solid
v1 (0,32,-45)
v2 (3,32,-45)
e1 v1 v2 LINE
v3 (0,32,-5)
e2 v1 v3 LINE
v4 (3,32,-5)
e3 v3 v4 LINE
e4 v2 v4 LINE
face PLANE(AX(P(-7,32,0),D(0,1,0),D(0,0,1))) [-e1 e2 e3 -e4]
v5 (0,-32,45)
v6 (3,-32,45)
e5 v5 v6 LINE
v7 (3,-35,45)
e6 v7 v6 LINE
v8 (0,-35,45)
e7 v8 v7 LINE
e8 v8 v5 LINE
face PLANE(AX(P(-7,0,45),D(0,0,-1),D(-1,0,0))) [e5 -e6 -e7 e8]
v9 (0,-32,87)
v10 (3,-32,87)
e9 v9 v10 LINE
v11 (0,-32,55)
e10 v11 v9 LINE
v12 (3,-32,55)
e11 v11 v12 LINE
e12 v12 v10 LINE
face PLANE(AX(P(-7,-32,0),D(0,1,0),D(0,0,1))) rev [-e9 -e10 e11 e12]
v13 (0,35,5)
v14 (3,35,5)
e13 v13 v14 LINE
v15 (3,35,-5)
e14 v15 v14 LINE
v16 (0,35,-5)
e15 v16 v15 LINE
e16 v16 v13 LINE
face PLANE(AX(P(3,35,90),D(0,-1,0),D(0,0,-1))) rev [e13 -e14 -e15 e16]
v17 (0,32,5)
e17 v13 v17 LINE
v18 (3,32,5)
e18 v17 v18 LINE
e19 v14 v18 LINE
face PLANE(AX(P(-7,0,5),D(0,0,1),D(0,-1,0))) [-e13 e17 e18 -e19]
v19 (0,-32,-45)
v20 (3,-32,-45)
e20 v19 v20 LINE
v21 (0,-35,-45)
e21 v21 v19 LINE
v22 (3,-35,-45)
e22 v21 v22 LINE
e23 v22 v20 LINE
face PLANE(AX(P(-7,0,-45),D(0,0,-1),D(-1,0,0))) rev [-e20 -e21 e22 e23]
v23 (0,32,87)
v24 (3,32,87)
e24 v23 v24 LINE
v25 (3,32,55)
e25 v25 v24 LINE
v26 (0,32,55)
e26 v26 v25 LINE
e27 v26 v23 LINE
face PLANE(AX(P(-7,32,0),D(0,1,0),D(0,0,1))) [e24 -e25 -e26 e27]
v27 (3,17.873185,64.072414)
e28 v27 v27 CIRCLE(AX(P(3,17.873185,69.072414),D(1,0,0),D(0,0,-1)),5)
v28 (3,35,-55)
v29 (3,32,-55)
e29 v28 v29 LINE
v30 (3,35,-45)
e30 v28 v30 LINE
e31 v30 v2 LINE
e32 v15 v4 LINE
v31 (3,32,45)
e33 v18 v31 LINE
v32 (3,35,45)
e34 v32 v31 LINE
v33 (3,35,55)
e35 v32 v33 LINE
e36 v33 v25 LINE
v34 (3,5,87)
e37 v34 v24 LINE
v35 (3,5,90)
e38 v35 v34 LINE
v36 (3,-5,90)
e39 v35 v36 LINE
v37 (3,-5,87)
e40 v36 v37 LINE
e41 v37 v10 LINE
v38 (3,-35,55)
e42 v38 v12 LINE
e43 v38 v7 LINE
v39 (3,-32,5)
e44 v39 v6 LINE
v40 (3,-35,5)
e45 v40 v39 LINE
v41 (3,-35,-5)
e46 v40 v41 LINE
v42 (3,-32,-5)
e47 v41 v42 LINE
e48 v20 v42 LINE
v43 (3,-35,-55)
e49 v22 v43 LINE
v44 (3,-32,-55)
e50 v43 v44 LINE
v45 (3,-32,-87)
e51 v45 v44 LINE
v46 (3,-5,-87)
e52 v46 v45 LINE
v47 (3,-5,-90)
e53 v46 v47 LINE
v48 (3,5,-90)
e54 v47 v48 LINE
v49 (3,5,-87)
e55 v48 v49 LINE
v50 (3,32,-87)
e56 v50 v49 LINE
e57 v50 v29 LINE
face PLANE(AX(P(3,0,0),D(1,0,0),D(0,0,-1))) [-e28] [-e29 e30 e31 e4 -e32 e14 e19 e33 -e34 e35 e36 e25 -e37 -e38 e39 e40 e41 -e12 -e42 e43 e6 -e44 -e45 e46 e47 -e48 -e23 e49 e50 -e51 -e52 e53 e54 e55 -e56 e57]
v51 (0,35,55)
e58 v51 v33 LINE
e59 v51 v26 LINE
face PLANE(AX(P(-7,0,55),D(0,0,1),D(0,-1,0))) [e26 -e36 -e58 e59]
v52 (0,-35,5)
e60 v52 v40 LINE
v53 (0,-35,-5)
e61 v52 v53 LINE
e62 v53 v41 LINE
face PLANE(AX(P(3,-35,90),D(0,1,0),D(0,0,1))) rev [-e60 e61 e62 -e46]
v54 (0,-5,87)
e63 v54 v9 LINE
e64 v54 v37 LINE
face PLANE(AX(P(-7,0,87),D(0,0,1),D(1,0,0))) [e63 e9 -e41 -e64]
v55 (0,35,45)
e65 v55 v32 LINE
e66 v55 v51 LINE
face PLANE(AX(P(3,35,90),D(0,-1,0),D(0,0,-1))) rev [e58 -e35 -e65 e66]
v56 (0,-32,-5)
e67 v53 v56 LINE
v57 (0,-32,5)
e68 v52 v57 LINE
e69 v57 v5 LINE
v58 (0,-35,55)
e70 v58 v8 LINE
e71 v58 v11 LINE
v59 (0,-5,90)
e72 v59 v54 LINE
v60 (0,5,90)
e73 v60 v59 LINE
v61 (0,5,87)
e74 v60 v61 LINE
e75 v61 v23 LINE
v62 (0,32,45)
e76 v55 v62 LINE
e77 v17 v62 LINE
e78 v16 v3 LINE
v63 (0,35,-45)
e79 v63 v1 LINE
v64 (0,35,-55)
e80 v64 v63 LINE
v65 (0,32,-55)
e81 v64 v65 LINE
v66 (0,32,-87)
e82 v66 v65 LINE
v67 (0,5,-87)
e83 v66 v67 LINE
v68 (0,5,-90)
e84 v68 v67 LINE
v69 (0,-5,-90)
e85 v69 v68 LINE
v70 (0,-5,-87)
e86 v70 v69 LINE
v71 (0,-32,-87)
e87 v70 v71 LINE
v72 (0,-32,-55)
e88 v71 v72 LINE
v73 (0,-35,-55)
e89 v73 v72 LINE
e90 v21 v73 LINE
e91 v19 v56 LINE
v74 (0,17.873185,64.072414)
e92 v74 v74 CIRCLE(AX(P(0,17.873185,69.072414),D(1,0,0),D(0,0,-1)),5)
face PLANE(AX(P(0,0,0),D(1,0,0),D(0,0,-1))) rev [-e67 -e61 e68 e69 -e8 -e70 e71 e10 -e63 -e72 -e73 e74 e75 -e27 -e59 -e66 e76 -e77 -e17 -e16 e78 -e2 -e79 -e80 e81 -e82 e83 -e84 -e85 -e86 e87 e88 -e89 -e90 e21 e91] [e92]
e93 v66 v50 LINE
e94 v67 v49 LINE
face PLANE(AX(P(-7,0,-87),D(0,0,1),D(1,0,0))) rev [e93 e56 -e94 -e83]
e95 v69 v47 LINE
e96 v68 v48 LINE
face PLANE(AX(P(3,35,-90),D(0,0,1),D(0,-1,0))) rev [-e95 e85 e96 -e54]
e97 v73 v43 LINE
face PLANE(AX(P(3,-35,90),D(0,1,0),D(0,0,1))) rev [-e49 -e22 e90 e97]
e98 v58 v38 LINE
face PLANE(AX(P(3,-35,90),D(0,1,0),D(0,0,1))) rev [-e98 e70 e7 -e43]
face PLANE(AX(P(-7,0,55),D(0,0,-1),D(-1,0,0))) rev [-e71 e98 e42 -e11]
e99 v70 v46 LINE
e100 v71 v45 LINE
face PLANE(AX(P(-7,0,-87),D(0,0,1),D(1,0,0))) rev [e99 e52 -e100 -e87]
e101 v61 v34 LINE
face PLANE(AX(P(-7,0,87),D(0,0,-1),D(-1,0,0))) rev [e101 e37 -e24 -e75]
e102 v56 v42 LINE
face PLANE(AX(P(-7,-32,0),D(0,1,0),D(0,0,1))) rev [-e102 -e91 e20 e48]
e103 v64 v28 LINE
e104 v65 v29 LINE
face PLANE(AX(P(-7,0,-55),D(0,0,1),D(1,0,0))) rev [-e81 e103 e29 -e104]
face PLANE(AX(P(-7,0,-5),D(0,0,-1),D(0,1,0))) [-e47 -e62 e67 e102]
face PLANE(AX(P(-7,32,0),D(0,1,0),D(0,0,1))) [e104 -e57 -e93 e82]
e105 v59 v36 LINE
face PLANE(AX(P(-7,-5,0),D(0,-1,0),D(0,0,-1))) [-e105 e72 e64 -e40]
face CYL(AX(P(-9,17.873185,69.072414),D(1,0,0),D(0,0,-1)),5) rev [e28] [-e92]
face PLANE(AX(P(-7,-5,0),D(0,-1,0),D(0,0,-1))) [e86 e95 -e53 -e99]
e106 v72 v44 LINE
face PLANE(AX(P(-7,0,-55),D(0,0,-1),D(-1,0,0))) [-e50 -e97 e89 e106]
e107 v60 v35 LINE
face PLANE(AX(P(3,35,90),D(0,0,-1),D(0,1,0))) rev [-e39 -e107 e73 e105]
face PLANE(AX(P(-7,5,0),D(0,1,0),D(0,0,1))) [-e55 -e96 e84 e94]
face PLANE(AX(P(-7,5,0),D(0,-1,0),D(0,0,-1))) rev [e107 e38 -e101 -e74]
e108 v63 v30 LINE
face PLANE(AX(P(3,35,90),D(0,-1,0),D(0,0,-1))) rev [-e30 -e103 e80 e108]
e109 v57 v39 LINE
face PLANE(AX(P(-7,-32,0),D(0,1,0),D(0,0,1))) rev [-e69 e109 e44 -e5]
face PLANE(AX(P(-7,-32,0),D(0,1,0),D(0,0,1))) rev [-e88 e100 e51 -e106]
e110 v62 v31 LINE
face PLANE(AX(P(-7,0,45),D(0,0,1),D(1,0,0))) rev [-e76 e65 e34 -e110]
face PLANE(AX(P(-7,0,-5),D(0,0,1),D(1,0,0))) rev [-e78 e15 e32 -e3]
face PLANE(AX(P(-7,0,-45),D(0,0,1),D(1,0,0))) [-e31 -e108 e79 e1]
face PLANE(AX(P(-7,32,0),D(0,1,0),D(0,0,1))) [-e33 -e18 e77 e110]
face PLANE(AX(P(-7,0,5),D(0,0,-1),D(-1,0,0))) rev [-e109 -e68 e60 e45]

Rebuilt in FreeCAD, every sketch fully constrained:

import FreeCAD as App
import Part
import Sketcher

V = App.Vector
Q = App.Units.Quantity

doc = App.newDocument("Part")
params = doc.addObject("Spreadsheet::Sheet", "Params")
for row, (alias, value) in enumerate([
    ("sketch1_width", "70 mm"),
    ("sketch1_height", "180 mm"),
    ("pad1_length", "3 mm"),
    ("sketch2_width", "3 mm"),
    ("sketch2_width2", "30 mm"),
    ("sketch2_height", "32 mm"),
    ("sketch2_height2", "40 mm"),
    ("pocket1_length", "10 mm"),
    ("sketch3_diameter", "10 mm"),
    ("pocket2_length", "12 mm"),
], start=1):
    params.set(f"A{row}", alias)
    params.set(f"B{row}", "=" + value)
    params.setAlias(f"B{row}", alias)

body = doc.addObject("PartDesign::Body", "Body")

# Sketch on YZ plane
sketch1 = body.newObject("Sketcher::SketchObject", "Sketch")
sketch1.AttachmentSupport = (doc.getObject("YZ_Plane"), [""])
sketch1.MapMode = "FlatFace"
sketch1.addGeometry(Part.LineSegment(V(35, 90, 0), V(-35, 90, 0)), False)
sketch1.addGeometry(Part.LineSegment(V(-35, 90, 0), V(-35, -90, 0)), False)
sketch1.addGeometry(Part.LineSegment(V(-35, -90, 0), V(35, -90, 0)), False)
sketch1.addGeometry(Part.LineSegment(V(35, -90, 0), V(35, 90, 0)), False)
sketch1.addConstraint(Sketcher.Constraint("Coincident", 0, 2, 1, 1))
sketch1.addConstraint(Sketcher.Constraint("Coincident", 1, 2, 2, 1))
sketch1.addConstraint(Sketcher.Constraint("Coincident", 2, 2, 3, 1))
sketch1.addConstraint(Sketcher.Constraint("Coincident", 3, 2, 0, 1))
sketch1.addConstraint(Sketcher.Constraint("Horizontal", 0))
sketch1.addConstraint(Sketcher.Constraint("Vertical", 1))
sketch1.addConstraint(Sketcher.Constraint("Horizontal", 2))
sketch1.addConstraint(Sketcher.Constraint("Vertical", 3))
sketch1.addConstraint(Sketcher.Constraint("Symmetric", 0, 2, 2, 2, -1, 1))
sketch1.addConstraint(Sketcher.Constraint("DistanceX", 0, 2, 0, 1, Q("70 mm")))
sketch1.addConstraint(Sketcher.Constraint("DistanceY", 1, 2, 1, 1, Q("180 mm")))
sketch1.setExpression("Constraints[9]", "Params.sketch1_width")
sketch1.setExpression("Constraints[10]", "Params.sketch1_height")
pad1 = body.newObject("PartDesign::Pad", "Pad")
pad1.Profile = sketch1
pad1.setExpression("Length", "Params.pad1_length")

# Sketch on YZ plane
sketch2 = body.newObject("Sketcher::SketchObject", "Sketch001")
sketch2.AttachmentSupport = (doc.getObject("YZ_Plane"), [""])
sketch2.MapMode = "FlatFace"
sketch2.AttachmentOffset = App.Placement(V(0, 0, 3), App.Rotation())
sketch2.addGeometry(Part.LineSegment(V(-32, -87, 0), V(-32, -55, 0)), False)
sketch2.addGeometry(Part.LineSegment(V(-32, -55, 0), V(-35, -55, 0)), False)
sketch2.addGeometry(Part.LineSegment(V(-35, -55, 0), V(-35, -90, 0)), False)
sketch2.addGeometry(Part.LineSegment(V(-35, -90, 0), V(-5, -90, 0)), False)
sketch2.addGeometry(Part.LineSegment(V(-5, -90, 0), V(-5, -87, 0)), False)
sketch2.addGeometry(Part.LineSegment(V(-5, -87, 0), V(-32, -87, 0)), False)
sketch2.addGeometry(Part.LineSegment(V(-32, -5, 0), V(-35, -5, 0)), False)
sketch2.addGeometry(Part.LineSegment(V(-35, -5, 0), V(-35, -45, 0)), False)
sketch2.addGeometry(Part.LineSegment(V(-35, -45, 0), V(-32, -45, 0)), False)
sketch2.addGeometry(Part.LineSegment(V(-32, -45, 0), V(-32, -5, 0)), False)
sketch2.addGeometry(Part.LineSegment(V(-32, 45, 0), V(-35, 45, 0)), False)
sketch2.addGeometry(Part.LineSegment(V(-35, 45, 0), V(-35, 5, 0)), False)
sketch2.addGeometry(Part.LineSegment(V(-35, 5, 0), V(-32, 5, 0)), False)
sketch2.addGeometry(Part.LineSegment(V(-32, 5, 0), V(-32, 45, 0)), False)
sketch2.addGeometry(Part.LineSegment(V(-32, 55, 0), V(-32, 87, 0)), False)
sketch2.addGeometry(Part.LineSegment(V(-32, 87, 0), V(-5, 87, 0)), False)
sketch2.addGeometry(Part.LineSegment(V(-5, 87, 0), V(-5, 90, 0)), False)
sketch2.addGeometry(Part.LineSegment(V(-5, 90, 0), V(-35, 90, 0)), False)
sketch2.addGeometry(Part.LineSegment(V(-35, 90, 0), V(-35, 55, 0)), False)
sketch2.addGeometry(Part.LineSegment(V(-35, 55, 0), V(-32, 55, 0)), False)
sketch2.addGeometry(Part.LineSegment(V(5, 90, 0), V(5, 87, 0)), False)
sketch2.addGeometry(Part.LineSegment(V(5, 87, 0), V(32, 87, 0)), False)
sketch2.addGeometry(Part.LineSegment(V(32, 87, 0), V(32, 55, 0)), False)
sketch2.addGeometry(Part.LineSegment(V(32, 55, 0), V(35, 55, 0)), False)
sketch2.addGeometry(Part.LineSegment(V(35, 55, 0), V(35, 90, 0)), False)
sketch2.addGeometry(Part.LineSegment(V(35, 90, 0), V(5, 90, 0)), False)
sketch2.addGeometry(Part.LineSegment(V(35, 45, 0), V(32, 45, 0)), False)
sketch2.addGeometry(Part.LineSegment(V(32, 45, 0), V(32, 5, 0)), False)
sketch2.addGeometry(Part.LineSegment(V(32, 5, 0), V(35, 5, 0)), False)
sketch2.addGeometry(Part.LineSegment(V(35, 5, 0), V(35, 45, 0)), False)
sketch2.addGeometry(Part.LineSegment(V(35, -5, 0), V(32, -5, 0)), False)
sketch2.addGeometry(Part.LineSegment(V(32, -5, 0), V(32, -45, 0)), False)
sketch2.addGeometry(Part.LineSegment(V(32, -45, 0), V(35, -45, 0)), False)
sketch2.addGeometry(Part.LineSegment(V(35, -45, 0), V(35, -5, 0)), False)
sketch2.addGeometry(Part.LineSegment(V(32, -55, 0), V(32, -87, 0)), False)
sketch2.addGeometry(Part.LineSegment(V(32, -87, 0), V(5, -87, 0)), False)
sketch2.addGeometry(Part.LineSegment(V(5, -87, 0), V(5, -90, 0)), False)
sketch2.addGeometry(Part.LineSegment(V(5, -90, 0), V(35, -90, 0)), False)
sketch2.addGeometry(Part.LineSegment(V(35, -90, 0), V(35, -55, 0)), False)
sketch2.addGeometry(Part.LineSegment(V(35, -55, 0), V(32, -55, 0)), False)
sketch2.addConstraint(Sketcher.Constraint("Coincident", 0, 2, 1, 1))
sketch2.addConstraint(Sketcher.Constraint("Coincident", 1, 2, 2, 1))
sketch2.addConstraint(Sketcher.Constraint("Coincident", 2, 2, 3, 1))
sketch2.addConstraint(Sketcher.Constraint("Coincident", 3, 2, 4, 1))
sketch2.addConstraint(Sketcher.Constraint("Coincident", 4, 2, 5, 1))
sketch2.addConstraint(Sketcher.Constraint("Coincident", 5, 2, 0, 1))
sketch2.addConstraint(Sketcher.Constraint("Coincident", 6, 2, 7, 1))
sketch2.addConstraint(Sketcher.Constraint("Coincident", 7, 2, 8, 1))
sketch2.addConstraint(Sketcher.Constraint("Coincident", 8, 2, 9, 1))
sketch2.addConstraint(Sketcher.Constraint("Coincident", 9, 2, 6, 1))
sketch2.addConstraint(Sketcher.Constraint("Coincident", 10, 2, 11, 1))
sketch2.addConstraint(Sketcher.Constraint("Coincident", 11, 2, 12, 1))
sketch2.addConstraint(Sketcher.Constraint("Coincident", 12, 2, 13, 1))
sketch2.addConstraint(Sketcher.Constraint("Coincident", 13, 2, 10, 1))
sketch2.addConstraint(Sketcher.Constraint("Coincident", 14, 2, 15, 1))
sketch2.addConstraint(Sketcher.Constraint("Coincident", 15, 2, 16, 1))
sketch2.addConstraint(Sketcher.Constraint("Coincident", 16, 2, 17, 1))
sketch2.addConstraint(Sketcher.Constraint("Coincident", 17, 2, 18, 1))
sketch2.addConstraint(Sketcher.Constraint("Coincident", 18, 2, 19, 1))
sketch2.addConstraint(Sketcher.Constraint("Coincident", 19, 2, 14, 1))
sketch2.addConstraint(Sketcher.Constraint("Coincident", 20, 2, 21, 1))
sketch2.addConstraint(Sketcher.Constraint("Coincident", 21, 2, 22, 1))
sketch2.addConstraint(Sketcher.Constraint("Coincident", 22, 2, 23, 1))
sketch2.addConstraint(Sketcher.Constraint("Coincident", 23, 2, 24, 1))
sketch2.addConstraint(Sketcher.Constraint("Coincident", 24, 2, 25, 1))
sketch2.addConstraint(Sketcher.Constraint("Coincident", 25, 2, 20, 1))
sketch2.addConstraint(Sketcher.Constraint("Coincident", 26, 2, 27, 1))
sketch2.addConstraint(Sketcher.Constraint("Coincident", 27, 2, 28, 1))
sketch2.addConstraint(Sketcher.Constraint("Coincident", 28, 2, 29, 1))
sketch2.addConstraint(Sketcher.Constraint("Coincident", 29, 2, 26, 1))
sketch2.addConstraint(Sketcher.Constraint("Coincident", 30, 2, 31, 1))
sketch2.addConstraint(Sketcher.Constraint("Coincident", 31, 2, 32, 1))
sketch2.addConstraint(Sketcher.Constraint("Coincident", 32, 2, 33, 1))
sketch2.addConstraint(Sketcher.Constraint("Coincident", 33, 2, 30, 1))
sketch2.addConstraint(Sketcher.Constraint("Coincident", 34, 2, 35, 1))
sketch2.addConstraint(Sketcher.Constraint("Coincident", 35, 2, 36, 1))
sketch2.addConstraint(Sketcher.Constraint("Coincident", 36, 2, 37, 1))
sketch2.addConstraint(Sketcher.Constraint("Coincident", 37, 2, 38, 1))
sketch2.addConstraint(Sketcher.Constraint("Coincident", 38, 2, 39, 1))
sketch2.addConstraint(Sketcher.Constraint("Coincident", 39, 2, 34, 1))
sketch2.addConstraint(Sketcher.Constraint("Vertical", 0))
sketch2.addConstraint(Sketcher.Constraint("Horizontal", 1))
sketch2.addConstraint(Sketcher.Constraint("Vertical", 2))
sketch2.addConstraint(Sketcher.Constraint("Horizontal", 3))
sketch2.addConstraint(Sketcher.Constraint("Vertical", 4))
sketch2.addConstraint(Sketcher.Constraint("Horizontal", 5))
sketch2.addConstraint(Sketcher.Constraint("Horizontal", 6))
sketch2.addConstraint(Sketcher.Constraint("Vertical", 7))
sketch2.addConstraint(Sketcher.Constraint("Horizontal", 8))
sketch2.addConstraint(Sketcher.Constraint("Vertical", 9))
sketch2.addConstraint(Sketcher.Constraint("Horizontal", 10))
sketch2.addConstraint(Sketcher.Constraint("Vertical", 11))
sketch2.addConstraint(Sketcher.Constraint("Horizontal", 12))
sketch2.addConstraint(Sketcher.Constraint("Vertical", 13))
sketch2.addConstraint(Sketcher.Constraint("Vertical", 14))
sketch2.addConstraint(Sketcher.Constraint("Horizontal", 15))
sketch2.addConstraint(Sketcher.Constraint("Vertical", 16))
sketch2.addConstraint(Sketcher.Constraint("Horizontal", 17))
sketch2.addConstraint(Sketcher.Constraint("Vertical", 18))
sketch2.addConstraint(Sketcher.Constraint("Horizontal", 19))
sketch2.addConstraint(Sketcher.Constraint("Vertical", 20))
sketch2.addConstraint(Sketcher.Constraint("Horizontal", 21))
sketch2.addConstraint(Sketcher.Constraint("Vertical", 22))
sketch2.addConstraint(Sketcher.Constraint("Horizontal", 23))
sketch2.addConstraint(Sketcher.Constraint("Vertical", 24))
sketch2.addConstraint(Sketcher.Constraint("Horizontal", 25))
sketch2.addConstraint(Sketcher.Constraint("Horizontal", 26))
sketch2.addConstraint(Sketcher.Constraint("Vertical", 27))
sketch2.addConstraint(Sketcher.Constraint("Horizontal", 28))
sketch2.addConstraint(Sketcher.Constraint("Vertical", 29))
sketch2.addConstraint(Sketcher.Constraint("Horizontal", 30))
sketch2.addConstraint(Sketcher.Constraint("Vertical", 31))
sketch2.addConstraint(Sketcher.Constraint("Horizontal", 32))
sketch2.addConstraint(Sketcher.Constraint("Vertical", 33))
sketch2.addConstraint(Sketcher.Constraint("Vertical", 34))
sketch2.addConstraint(Sketcher.Constraint("Horizontal", 35))
sketch2.addConstraint(Sketcher.Constraint("Vertical", 36))
sketch2.addConstraint(Sketcher.Constraint("Horizontal", 37))
sketch2.addConstraint(Sketcher.Constraint("Vertical", 38))
sketch2.addConstraint(Sketcher.Constraint("Horizontal", 39))
sketch2.addConstraint(Sketcher.Constraint("Symmetric", 4, 2, 20, 2, -1, 1))
sketch2.addConstraint(Sketcher.Constraint("Symmetric", 0, 2, 22, 2, -1, 1))
sketch2.addConstraint(Sketcher.Constraint("Symmetric", 2, 2, 24, 2, -1, 1))
sketch2.addConstraint(Sketcher.Constraint("Symmetric", 8, 2, 26, 2, -1, 1))
sketch2.addConstraint(Sketcher.Constraint("Symmetric", 6, 2, 28, 2, -1, 1))
sketch2.addConstraint(Sketcher.Constraint("Symmetric", 12, 2, 30, 2, -1, 1))
sketch2.addConstraint(Sketcher.Constraint("Symmetric", 10, 2, 32, 2, -1, 1))
sketch2.addConstraint(Sketcher.Constraint("Symmetric", 14, 2, 34, 2, -1, 1))
sketch2.addConstraint(Sketcher.Constraint("Symmetric", 16, 2, 36, 2, -1, 1))
sketch2.addConstraint(Sketcher.Constraint("Symmetric", 18, 2, 38, 2, -1, 1))
sketch2.addConstraint(Sketcher.Constraint("Symmetric", 15, 2, 20, 2, -2))
sketch2.addConstraint(Sketcher.Constraint("Symmetric", 19, 2, 22, 2, -2))
sketch2.addConstraint(Sketcher.Constraint("Symmetric", 17, 2, 24, 2, -2))
sketch2.addConstraint(Sketcher.Constraint("Symmetric", 13, 2, 26, 2, -2))
sketch2.addConstraint(Sketcher.Constraint("Symmetric", 11, 2, 28, 2, -2))
sketch2.addConstraint(Sketcher.Constraint("Vertical", 2, 2, 6, 2))
sketch2.addConstraint(Sketcher.Constraint("Vertical", 5, 2, 8, 2))
sketch2.addConstraint(Sketcher.Constraint("Equal", 39, 4))
sketch2.addConstraint(Sketcher.Constraint("DistanceX", 1, 2, 1, 1, Q("3 mm")))
sketch2.addConstraint(Sketcher.Constraint("DistanceX", 3, 1, 3, 2, Q("30 mm")))
sketch2.addConstraint(Sketcher.Constraint("DistanceY", 0, 1, 0, 2, Q("32 mm")))
sketch2.addConstraint(Sketcher.Constraint("DistanceY", 7, 2, 7, 1, Q("40 mm")))
sketch2.addConstraint(Sketcher.Constraint("DistanceX", 0, 2, -1, 1, Q("32 mm")))
sketch2.addConstraint(Sketcher.Constraint("DistanceY", 0, 2, -1, 1, Q("55 mm")))
sketch2.addConstraint(Sketcher.Constraint("DistanceY", 6, 2, -1, 1, Q("5 mm")))
sketch2.setExpression("Constraints[98]", "Params.sketch2_width")
sketch2.setExpression("Constraints[99]", "Params.sketch2_width2")
sketch2.setExpression("Constraints[100]", "Params.sketch2_height")
sketch2.setExpression("Constraints[101]", "Params.sketch2_height2")
pocket1 = body.newObject("PartDesign::Pocket", "Pocket")
pocket1.Profile = sketch2
pocket1.setExpression("Length", "Params.pocket1_length")

# Sketch on YZ plane
sketch3 = body.newObject("Sketcher::SketchObject", "Sketch002")
sketch3.AttachmentSupport = (doc.getObject("YZ_Plane"), [""])
sketch3.MapMode = "FlatFace"
sketch3.AttachmentOffset = App.Placement(V(0, 0, 3), App.Rotation())
sketch3.addGeometry(Part.Circle(V(17.873185, 69.072414, 0), V(0, 0, 1), 5), False)
sketch3.addConstraint(Sketcher.Constraint("Diameter", 0, Q("10 mm")))
sketch3.addConstraint(Sketcher.Constraint("DistanceX", -1, 1, 0, 3, Q("17.873185 mm")))
sketch3.addConstraint(Sketcher.Constraint("DistanceY", -1, 1, 0, 3, Q("69.072414 mm")))
sketch3.setExpression("Constraints[0]", "Params.sketch3_diameter")
pocket2 = body.newObject("PartDesign::Pocket", "Pocket001")
pocket2.Profile = sketch3
pocket2.setExpression("Length", "Params.pocket2_length")

doc.recompute()
